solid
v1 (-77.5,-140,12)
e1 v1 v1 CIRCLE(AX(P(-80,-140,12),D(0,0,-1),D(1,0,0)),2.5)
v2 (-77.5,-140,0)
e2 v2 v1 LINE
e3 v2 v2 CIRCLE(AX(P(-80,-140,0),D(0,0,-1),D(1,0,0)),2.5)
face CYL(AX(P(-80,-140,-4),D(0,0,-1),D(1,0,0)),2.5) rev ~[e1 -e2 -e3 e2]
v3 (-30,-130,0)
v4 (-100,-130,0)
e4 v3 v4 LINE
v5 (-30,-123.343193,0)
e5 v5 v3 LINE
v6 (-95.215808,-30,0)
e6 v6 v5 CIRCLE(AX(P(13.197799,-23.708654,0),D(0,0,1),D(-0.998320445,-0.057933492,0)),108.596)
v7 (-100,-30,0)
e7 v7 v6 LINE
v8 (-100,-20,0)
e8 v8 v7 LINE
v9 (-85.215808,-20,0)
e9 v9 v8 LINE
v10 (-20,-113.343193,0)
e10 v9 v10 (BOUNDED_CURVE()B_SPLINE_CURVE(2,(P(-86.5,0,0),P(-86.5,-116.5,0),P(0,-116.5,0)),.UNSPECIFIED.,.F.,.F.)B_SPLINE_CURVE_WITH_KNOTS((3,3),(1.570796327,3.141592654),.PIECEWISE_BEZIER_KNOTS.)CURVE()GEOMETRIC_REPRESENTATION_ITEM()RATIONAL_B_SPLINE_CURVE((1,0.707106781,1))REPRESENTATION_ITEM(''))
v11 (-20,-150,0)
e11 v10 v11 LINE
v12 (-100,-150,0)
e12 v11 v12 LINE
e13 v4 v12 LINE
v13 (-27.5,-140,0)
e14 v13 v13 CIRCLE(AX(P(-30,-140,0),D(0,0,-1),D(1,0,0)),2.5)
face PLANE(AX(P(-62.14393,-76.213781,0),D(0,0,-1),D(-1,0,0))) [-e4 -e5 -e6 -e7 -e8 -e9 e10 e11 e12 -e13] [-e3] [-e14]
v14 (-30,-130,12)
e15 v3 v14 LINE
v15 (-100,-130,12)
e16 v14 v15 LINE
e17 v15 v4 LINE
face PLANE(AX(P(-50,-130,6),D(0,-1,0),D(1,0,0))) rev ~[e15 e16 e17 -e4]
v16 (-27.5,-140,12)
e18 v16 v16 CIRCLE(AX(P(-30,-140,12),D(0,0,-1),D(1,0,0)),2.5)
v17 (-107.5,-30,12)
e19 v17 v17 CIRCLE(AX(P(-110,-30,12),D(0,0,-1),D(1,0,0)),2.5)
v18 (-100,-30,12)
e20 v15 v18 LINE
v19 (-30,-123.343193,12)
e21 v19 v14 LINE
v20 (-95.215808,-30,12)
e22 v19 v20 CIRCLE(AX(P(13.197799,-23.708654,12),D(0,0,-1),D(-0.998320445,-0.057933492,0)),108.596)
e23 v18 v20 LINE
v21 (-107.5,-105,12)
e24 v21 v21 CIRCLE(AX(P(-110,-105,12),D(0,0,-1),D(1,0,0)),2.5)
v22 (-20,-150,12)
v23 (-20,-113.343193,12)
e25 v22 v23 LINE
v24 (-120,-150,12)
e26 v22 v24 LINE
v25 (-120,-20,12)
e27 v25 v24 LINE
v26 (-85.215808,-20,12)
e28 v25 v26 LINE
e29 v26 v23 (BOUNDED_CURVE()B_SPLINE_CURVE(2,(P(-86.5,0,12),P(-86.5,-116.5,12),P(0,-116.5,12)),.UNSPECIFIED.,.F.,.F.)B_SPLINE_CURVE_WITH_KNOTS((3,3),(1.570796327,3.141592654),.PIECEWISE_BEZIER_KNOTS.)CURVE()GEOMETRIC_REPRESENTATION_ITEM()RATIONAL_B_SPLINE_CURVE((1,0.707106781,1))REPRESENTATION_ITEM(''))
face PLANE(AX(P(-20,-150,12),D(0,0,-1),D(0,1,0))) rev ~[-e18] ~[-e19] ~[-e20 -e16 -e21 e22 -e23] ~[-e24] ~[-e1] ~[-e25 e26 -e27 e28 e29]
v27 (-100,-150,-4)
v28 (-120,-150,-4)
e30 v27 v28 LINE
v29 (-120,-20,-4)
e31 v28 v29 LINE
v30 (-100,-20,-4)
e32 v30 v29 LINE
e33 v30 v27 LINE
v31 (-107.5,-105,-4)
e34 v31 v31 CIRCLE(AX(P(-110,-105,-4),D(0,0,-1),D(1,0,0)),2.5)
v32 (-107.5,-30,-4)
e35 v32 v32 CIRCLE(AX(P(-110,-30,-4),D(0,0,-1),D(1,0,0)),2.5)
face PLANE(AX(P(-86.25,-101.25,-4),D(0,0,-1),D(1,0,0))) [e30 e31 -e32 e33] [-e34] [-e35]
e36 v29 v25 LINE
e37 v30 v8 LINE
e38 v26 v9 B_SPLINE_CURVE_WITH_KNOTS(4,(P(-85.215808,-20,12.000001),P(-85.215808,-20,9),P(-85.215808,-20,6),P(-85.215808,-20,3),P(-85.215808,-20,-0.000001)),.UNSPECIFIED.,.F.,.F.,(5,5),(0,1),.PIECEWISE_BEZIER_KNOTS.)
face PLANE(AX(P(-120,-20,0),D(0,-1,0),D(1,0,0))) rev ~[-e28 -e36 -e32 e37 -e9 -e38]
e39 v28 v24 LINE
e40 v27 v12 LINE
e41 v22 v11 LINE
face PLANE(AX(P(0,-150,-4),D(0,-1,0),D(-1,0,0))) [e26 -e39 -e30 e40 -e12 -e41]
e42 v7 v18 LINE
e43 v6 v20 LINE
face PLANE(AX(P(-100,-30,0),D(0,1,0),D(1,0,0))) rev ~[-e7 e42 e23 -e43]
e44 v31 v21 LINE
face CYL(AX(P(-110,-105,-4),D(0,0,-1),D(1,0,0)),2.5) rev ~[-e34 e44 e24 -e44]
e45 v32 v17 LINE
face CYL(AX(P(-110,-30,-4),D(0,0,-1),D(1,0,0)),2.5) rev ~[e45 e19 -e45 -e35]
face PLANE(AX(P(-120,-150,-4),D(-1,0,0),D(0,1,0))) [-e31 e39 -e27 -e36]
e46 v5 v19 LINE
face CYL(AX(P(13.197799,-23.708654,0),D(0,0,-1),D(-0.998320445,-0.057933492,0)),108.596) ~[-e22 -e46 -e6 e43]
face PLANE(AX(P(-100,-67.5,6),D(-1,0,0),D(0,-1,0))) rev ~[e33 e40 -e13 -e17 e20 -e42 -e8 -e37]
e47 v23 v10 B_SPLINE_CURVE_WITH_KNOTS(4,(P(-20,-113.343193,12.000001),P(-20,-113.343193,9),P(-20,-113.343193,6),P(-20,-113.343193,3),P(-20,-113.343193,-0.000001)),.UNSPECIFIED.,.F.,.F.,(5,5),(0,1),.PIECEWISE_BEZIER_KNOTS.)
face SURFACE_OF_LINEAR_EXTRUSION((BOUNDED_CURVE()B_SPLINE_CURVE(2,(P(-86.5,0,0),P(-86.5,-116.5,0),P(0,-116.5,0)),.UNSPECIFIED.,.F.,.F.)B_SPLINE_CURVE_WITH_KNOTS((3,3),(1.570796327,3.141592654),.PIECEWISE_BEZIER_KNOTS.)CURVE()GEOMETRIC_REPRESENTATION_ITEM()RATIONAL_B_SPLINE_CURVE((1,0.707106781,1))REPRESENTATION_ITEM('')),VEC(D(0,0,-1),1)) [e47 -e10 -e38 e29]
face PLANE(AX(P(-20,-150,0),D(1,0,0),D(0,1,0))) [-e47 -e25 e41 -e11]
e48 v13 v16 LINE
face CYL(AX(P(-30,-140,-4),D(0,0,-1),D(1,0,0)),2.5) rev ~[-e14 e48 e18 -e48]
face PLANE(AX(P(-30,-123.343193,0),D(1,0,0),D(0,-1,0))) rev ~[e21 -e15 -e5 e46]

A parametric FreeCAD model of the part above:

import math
import FreeCAD as App
import Part
import Sketcher
from FreeCAD import Vector


def add_polygon(sketch, points):
    """Adds a closed chain of lines whose ends are joined by coincident constraints."""
    first, n = sketch.GeometryCount, len(points)
    for a, b in zip(points, points[1:] + points[:1]):
        sketch.addGeometry(Part.LineSegment(App.Vector(*a, 0), App.Vector(*b, 0)), False)
    for i in range(n):
        sketch.addConstraint(Sketcher.Constraint("Coincident", first + i, 2, first + (i + 1) % n, 1))

doc = App.newDocument("Part")
body = doc.addObject("PartDesign::Body", "Body")

sketch1 = doc.addObject("Sketcher::SketchObject", "Sketch")
body.addObject(sketch1)
sketch1.AttachmentSupport = (doc.XY_Plane, [""])
sketch1.MapMode = "FlatFace"
sketch1.addGeometry(Part.BSplineCurve([Vector(-86.5, 0, 0), Vector(-86.5, -116.5, 0), Vector(0, -116.5, 0)], [3, 3], [1.570796327, 3.141592654], False, 2, [1, 0.707106781, 1], False), False)
sketch1.addGeometry(Part.LineSegment(Vector(-86.5, 0, 0), Vector(-100, 0, 0)), False)
sketch1.addGeometry(Part.LineSegment(Vector(-100, 0, 0), Vector(-100, -130, 0)), False)
sketch1.addGeometry(Part.LineSegment(Vector(-100, -130, 0), Vector(0, -130, 0)), False)
sketch1.addGeometry(Part.LineSegment(Vector(0, -130, 0), Vector(0, -116.5, 0)), False)
sketch1.addConstraint(Sketcher.Constraint("Block", 0))
sketch1.addConstraint(Sketcher.Constraint("Coincident", 0, 1, 1, 1))
sketch1.addConstraint(Sketcher.Constraint("Coincident", 1, 2, 2, 1))
sketch1.addConstraint(Sketcher.Constraint("Coincident", 2, 2, 3, 1))
sketch1.addConstraint(Sketcher.Constraint("Coincident", 3, 2, 4, 1))
sketch1.addConstraint(Sketcher.Constraint("Coincident", 4, 2, 0, 2))
sketch1.addConstraint(Sketcher.Constraint("Horizontal", 1))
sketch1.addConstraint(Sketcher.Constraint("Vertical", 2))
sketch1.addConstraint(Sketcher.Constraint("Horizontal", 3))
sketch1.addConstraint(Sketcher.Constraint("Vertical", 4))
sketch1.addConstraint(Sketcher.Constraint("Equal", 1, 4))
sketch1.addConstraint(Sketcher.Constraint("DistanceX", 3, 1, 3, 2, 100.0))
pad1 = doc.addObject("PartDesign::Pad", "Pad")
body.addObject(pad1)
pad1.Profile = sketch1
pad1.Length = 12

sketch2 = doc.addObject("Sketcher::SketchObject", "Sketch001")
body.addObject(sketch2)
sketch2.AttachmentSupport = (doc.XZ_Plane, [""])
sketch2.MapMode = "FlatFace"
sketch2.AttachmentOffset = App.Placement(Vector(0, 0, 130), App.Rotation())
add_polygon(sketch2, [(-100, 16), (-100, -4), (0, -4), (0, 16)])
sketch2.addConstraint(Sketcher.Constraint("Vertical", 0))
sketch2.addConstraint(Sketcher.Constraint("Horizontal", 1))
sketch2.addConstraint(Sketcher.Constraint("Vertical", 2))
sketch2.addConstraint(Sketcher.Constraint("Horizontal", 3))
sketch2.addConstraint(Sketcher.Constraint("PointOnObject", 1, 2, -2))
sketch2.addConstraint(Sketcher.Constraint("DistanceX", 1, 1, 1, 2, 100.0))
sketch2.addConstraint(Sketcher.Constraint("DistanceY", 0, 2, 0, 1, 20.0))
sketch2.addConstraint(Sketcher.Constraint("DistanceY", 0, 2, -1, 1, 4.0))
pad2 = doc.addObject("PartDesign::Pad", "Pad001")
body.addObject(pad2)
pad2.Profile = sketch2
pad2.Length = 5

sketch3 = doc.addObject("Sketcher::SketchObject", "Sketch002")
body.addObject(sketch3)
sketch3.AttachmentSupport = (doc.YZ_Plane, [""])
sketch3.MapMode = "FlatFace"
sketch3.AttachmentOffset = App.Placement(Vector(0, 0, -100), App.Rotation())
add_polygon(sketch3, [(0, 16), (0, -4), (-135, -4), (-135, 16)])
sketch3.addConstraint(Sketcher.Constraint("Vertical", 0))
sketch3.addConstraint(Sketcher.Constraint("Horizontal", 1))
sketch3.addConstraint(Sketcher.Constraint("Vertical", 2))
sketch3.addConstraint(Sketcher.Constraint("Horizontal", 3))
sketch3.addConstraint(Sketcher.Constraint("PointOnObject", 0, 2, -2))
sketch3.addConstraint(Sketcher.Constraint("DistanceX", 1, 2, 1, 1, 135.0))
sketch3.addConstraint(Sketcher.Constraint("DistanceY", 0, 2, 0, 1, 20.0))
sketch3.addConstraint(Sketcher.Constraint("DistanceY", 0, 2, -1, 1, 4.0))
pad3 = doc.addObject("PartDesign::Pad", "Pad002")
body.addObject(pad3)
pad3.Profile = sketch3
pad3.Length = 5
pad3.Reversed = True

sketch4 = doc.addObject("Sketcher::SketchObject", "Sketch003")
body.addObject(sketch4)
sketch4.AttachmentSupport = (doc.XY_Plane, [""])
sketch4.MapMode = "FlatFace"
sketch4.AttachmentOffset = App.Placement(Vector(0, 0, -4), App.Rotation())
add_polygon(sketch4, [(0, -135), (0, -150), (-120, -150), (-120, 0), (-105, 0), (-105, -135)])
sketch4.addGeometry(Part.Circle(Vector(-110, -30, 0), Vector(0, 0, 1), 2.5), False)
sketch4.addGeometry(Part.Circle(Vector(-110, -105, 0), Vector(0, 0, 1), 2.5), False)
sketch4.addGeometry(Part.Circle(Vector(-80, -140, 0), Vector(0, 0, 1), 2.5), False)
sketch4.addGeometry(Part.Circle(Vector(-30, -140, 0), Vector(0, 0, 1), 2.5), False)
sketch4.addConstraint(Sketcher.Constraint("Vertical", 0))
sketch4.addConstraint(Sketcher.Constraint("Horizontal", 1))
sketch4.addConstraint(Sketcher.Constraint("Vertical", 2))
sketch4.addConstraint(Sketcher.Constraint("Horizontal", 3))
sketch4.addConstraint(Sketcher.Constraint("Vertical", 4))
sketch4.addConstraint(Sketcher.Constraint("Horizontal", 5))
sketch4.addConstraint(Sketcher.Constraint("Equal", 6, 7))
sketch4.addConstraint(Sketcher.Constraint("Equal", 7, 8))
sketch4.addConstraint(Sketcher.Constraint("Equal", 8, 9))
sketch4.addConstraint(Sketcher.Constraint("PointOnObject", 0, 2, -2))
sketch4.addConstraint(Sketcher.Constraint("PointOnObject", 2, 2, -1))
sketch4.addConstraint(Sketcher.Constraint("Horizontal", 8, 3, 9, 3))
sketch4.addConstraint(Sketcher.Constraint("Vertical", 6, 3, 7, 3))
sketch4.addConstraint(Sketcher.Constraint("Equal", 3, 0))
sketch4.addConstraint(Sketcher.Constraint("Diameter", 6, 5.0))
sketch4.addConstraint(Sketcher.Constraint("DistanceX", 1, 2, 1, 1, 120.0))
sketch4.addConstraint(Sketcher.Constraint("DistanceX", 3, 1, 3, 2, 15.0))
sketch4.addConstraint(Sketcher.Constraint("DistanceY", 2, 1, 2, 2, 150.0))
sketch4.addConstraint(Sketcher.Constraint("DistanceX", 6, 3, -1, 1, 110.0))
sketch4.addConstraint(Sketcher.Constraint("DistanceY", 6, 3, -1, 1, 30.0))
sketch4.addConstraint(Sketcher.Constraint("DistanceY", 7, 3, -1, 1, 105.0))
sketch4.addConstraint(Sketcher.Constraint("DistanceX", 8, 3, -1, 1, 80.0))
sketch4.addConstraint(Sketcher.Constraint("DistanceY", 8, 3, -1, 1, 140.0))
sketch4.addConstraint(Sketcher.Constraint("DistanceX", 9, 3, -1, 1, 30.0))
pad4 = doc.addObject("PartDesign::Pad", "Pad003")
body.addObject(pad4)
pad4.Profile = sketch4
pad4.Length = 25

sketch5 = doc.addObject("Sketcher::SketchObject", "Sketch004")
body.addObject(sketch5)
sketch5.AttachmentSupport = (doc.XY_Plane, [""])
sketch5.MapMode = "FlatFace"
sketch5.AttachmentOffset = App.Placement(Vector(0, 0, 16), App.Rotation())
add_polygon(sketch5, [(-90, 0), (-105, 0), (-105, -135), (0, -135), (0, -120), (-90, -120)])
sketch5.addConstraint(Sketcher.Constraint("Horizontal", 0))
sketch5.addConstraint(Sketcher.Constraint("Vertical", 1))
sketch5.addConstraint(Sketcher.Constraint("Horizontal", 2))
sketch5.addConstraint(Sketcher.Constraint("Vertical", 3))
sketch5.addConstraint(Sketcher.Constraint("Horizontal", 4))
sketch5.addConstraint(Sketcher.Constraint("Vertical", 5))
sketch5.addConstraint(Sketcher.Constraint("PointOnObject", 0, 2, -1))
sketch5.addConstraint(Sketcher.Constraint("PointOnObject", 2, 2, -2))
sketch5.addConstraint(Sketcher.Constraint("Equal", 0, 3))
sketch5.addConstraint(Sketcher.Constraint("DistanceX", 0, 2, 0, 1, 15.0))
sketch5.addConstraint(Sketcher.Constraint("DistanceX", 2, 1, 2, 2, 105.0))
sketch5.addConstraint(Sketcher.Constraint("DistanceY", 1, 2, 1, 1, 135.0))
pad5 = doc.addObject("PartDesign::Pad", "Pad004")
body.addObject(pad5)
pad5.Profile = sketch5
pad5.Length = 5

sketch6 = doc.addObject("Sketcher::SketchObject", "Sketch005")
body.addObject(sketch6)
sketch6.AttachmentSupport = (doc.XY_Plane, [""])
sketch6.MapMode = "FlatFace"
add_polygon(sketch6, [(0, 0), (-120, 0), (-120, -20), (-20, -20), (-20, -150), (0, -150)])
sketch6.addConstraint(Sketcher.Constraint("Horizontal", 0))
sketch6.addConstraint(Sketcher.Constraint("Vertical", 1))
sketch6.addConstraint(Sketcher.Constraint("Horizontal", 2))
sketch6.addConstraint(Sketcher.Constraint("Vertical", 3))
sketch6.addConstraint(Sketcher.Constraint("Horizontal", 4))
sketch6.addConstraint(Sketcher.Constraint("Vertical", 5))
sketch6.addConstraint(Sketcher.Constraint("Coincident", 5, 2, -1, 1))
sketch6.addConstraint(Sketcher.Constraint("Equal", 4, 1))
sketch6.addConstraint(Sketcher.Constraint("DistanceX", 0, 2, 0, 1, 120.0))
sketch6.addConstraint(Sketcher.Constraint("DistanceX", 2, 1, 2, 2, 100.0))
sketch6.addConstraint(Sketcher.Constraint("DistanceY", 3, 2, 3, 1, 130.0))
pocket1 = doc.addObject("PartDesign::Pocket", "Pocket")
body.addObject(pocket1)
pocket1.Profile = sketch6
pocket1.Length = 50
pocket1.Midplane = True

sketch7 = doc.addObject("Sketcher::SketchObject", "Sketch006")
body.addObject(sketch7)
sketch7.AttachmentSupport = (doc.YZ_Plane, [""])
sketch7.MapMode = "FlatFace"
sketch7.AttachmentOffset = App.Placement(Vector(0, 0, -20), App.Rotation())
add_polygon(sketch7, [(-150, 21), (-150, 12), (-20, 12), (-20, 21)])
sketch7.addConstraint(Sketcher.Constraint("Vertical", 0))
sketch7.addConstraint(Sketcher.Constraint("Horizontal", 1))
sketch7.addConstraint(Sketcher.Constraint("Vertical", 2))
sketch7.addConstraint(Sketcher.Constraint("Horizontal", 3))
sketch7.addConstraint(Sketcher.Constraint("DistanceX", 1, 1, 1, 2, 130.0))
sketch7.addConstraint(Sketcher.Constraint("DistanceY", 0, 2, 0, 1, 9.0))
sketch7.addConstraint(Sketcher.Constraint("DistanceX", 0, 2, -1, 1, 150.0))
sketch7.addConstraint(Sketcher.Constraint("DistanceY", -1, 1, 0, 2, 12.0))
pocket2 = doc.addObject("PartDesign::Pocket", "Pocket001")
body.addObject(pocket2)
pocket2.Profile = sketch7
pocket2.Type = "ThroughAll"

sketch8 = doc.addObject("Sketcher::SketchObject", "Sketch007")
body.addObject(sketch8)
sketch8.AttachmentSupport = (doc.XY_Plane, [""])
sketch8.MapMode = "FlatFace"
sketch8.addGeometry(Part.LineSegment(Vector(-30, -130, 0), Vector(-100, -130, 0)), False)
sketch8.addGeometry(Part.LineSegment(Vector(-100, -130, 0), Vector(-100, -30, 0)), False)
sketch8.addGeometry(Part.LineSegment(Vector(-100, -30, 0), Vector(-95.215808, -30, 0)), False)
sketch8.addGeometry(Part.ArcOfCircle(Part.Circle(Vector(13.197799, -23.708654, 0), Vector(0, 0, 1), 108.596), math.radians(-176.678796), math.radians(-113.439746)), False)
sketch8.addGeometry(Part.LineSegment(Vector(-30, -123.343193, 0), Vector(-30, -130, 0)), False)
sketch8.addConstraint(Sketcher.Constraint("Coincident", 0, 2, 1, 1))
sketch8.addConstraint(Sketcher.Constraint("Coincident", 1, 2, 2, 1))
sketch8.addConstraint(Sketcher.Constraint("Coincident", 2, 2, 3, 1))
sketch8.addConstraint(Sketcher.Constraint("Coincident", 3, 2, 4, 1))
sketch8.addConstraint(Sketcher.Constraint("Coincident", 4, 2, 0, 1))
sketch8.addConstraint(Sketcher.Constraint("Horizontal", 0))
sketch8.addConstraint(Sketcher.Constraint("Vertical", 1))
sketch8.addConstraint(Sketcher.Constraint("Horizontal", 2))
sketch8.addConstraint(Sketcher.Constraint("Vertical", 4))
sketch8.addConstraint(Sketcher.Constraint("DistanceX", 0, 2, 0, 1, 70.0))
sketch8.addConstraint(Sketcher.Constraint("DistanceY", 1, 1, 1, 2, 100.0))
sketch8.addConstraint(Sketcher.Constraint("DistanceX", 0, 2, -1, 1, 100.0))
sketch8.addConstraint(Sketcher.Constraint("DistanceY", 0, 2, -1, 1, 130.0))
sketch8.addConstraint(Sketcher.Constraint("Radius", 3, 108.596))
sketch8.addConstraint(Sketcher.Constraint("DistanceX", -1, 1, 3, 3, 13.197799))
sketch8.addConstraint(Sketcher.Constraint("DistanceX", 2, 1, 2, 2, 4.784192))
pocket3 = doc.addObject("PartDesign::Pocket", "Pocket002")
body.addObject(pocket3)
pocket3.Profile = sketch8
pocket3.Type = "ThroughAll"
pocket3.Reversed = True

sketch9 = doc.addObject("Sketcher::SketchObject", "Sketch008")
body.addObject(sketch9)
sketch9.AttachmentSupport = (doc.XZ_Plane, [""])
sketch9.MapMode = "FlatFace"
sketch9.AttachmentOffset = App.Placement(Vector(0, 0, 130), App.Rotation())
add_polygon(sketch9, [(-20, 0), (-20, -4), (-100, -4), (-100, 0)])
sketch9.addConstraint(Sketcher.Constraint("Vertical", 0))
sketch9.addConstraint(Sketcher.Constraint("Horizontal", 1))
sketch9.addConstraint(Sketcher.Constraint("Vertical", 2))
sketch9.addConstraint(Sketcher.Constraint("Horizontal", 3))
sketch9.addConstraint(Sketcher.Constraint("PointOnObject", 2, 2, -1))
sketch9.addConstraint(Sketcher.Constraint("DistanceX", 1, 2, 1, 1, 80.0))
sketch9.addConstraint(Sketcher.Constraint("DistanceY", 0, 2, 0, 1, 4.0))
sketch9.addConstraint(Sketcher.Constraint("DistanceX", 0, 2, -1, 1, 20.0))
pocket4 = doc.addObject("PartDesign::Pocket", "Pocket003")
body.addObject(pocket4)
pocket4.Profile = sketch9
pocket4.Type = "ThroughAll"
pocket4.Reversed = True

doc.recompute()
